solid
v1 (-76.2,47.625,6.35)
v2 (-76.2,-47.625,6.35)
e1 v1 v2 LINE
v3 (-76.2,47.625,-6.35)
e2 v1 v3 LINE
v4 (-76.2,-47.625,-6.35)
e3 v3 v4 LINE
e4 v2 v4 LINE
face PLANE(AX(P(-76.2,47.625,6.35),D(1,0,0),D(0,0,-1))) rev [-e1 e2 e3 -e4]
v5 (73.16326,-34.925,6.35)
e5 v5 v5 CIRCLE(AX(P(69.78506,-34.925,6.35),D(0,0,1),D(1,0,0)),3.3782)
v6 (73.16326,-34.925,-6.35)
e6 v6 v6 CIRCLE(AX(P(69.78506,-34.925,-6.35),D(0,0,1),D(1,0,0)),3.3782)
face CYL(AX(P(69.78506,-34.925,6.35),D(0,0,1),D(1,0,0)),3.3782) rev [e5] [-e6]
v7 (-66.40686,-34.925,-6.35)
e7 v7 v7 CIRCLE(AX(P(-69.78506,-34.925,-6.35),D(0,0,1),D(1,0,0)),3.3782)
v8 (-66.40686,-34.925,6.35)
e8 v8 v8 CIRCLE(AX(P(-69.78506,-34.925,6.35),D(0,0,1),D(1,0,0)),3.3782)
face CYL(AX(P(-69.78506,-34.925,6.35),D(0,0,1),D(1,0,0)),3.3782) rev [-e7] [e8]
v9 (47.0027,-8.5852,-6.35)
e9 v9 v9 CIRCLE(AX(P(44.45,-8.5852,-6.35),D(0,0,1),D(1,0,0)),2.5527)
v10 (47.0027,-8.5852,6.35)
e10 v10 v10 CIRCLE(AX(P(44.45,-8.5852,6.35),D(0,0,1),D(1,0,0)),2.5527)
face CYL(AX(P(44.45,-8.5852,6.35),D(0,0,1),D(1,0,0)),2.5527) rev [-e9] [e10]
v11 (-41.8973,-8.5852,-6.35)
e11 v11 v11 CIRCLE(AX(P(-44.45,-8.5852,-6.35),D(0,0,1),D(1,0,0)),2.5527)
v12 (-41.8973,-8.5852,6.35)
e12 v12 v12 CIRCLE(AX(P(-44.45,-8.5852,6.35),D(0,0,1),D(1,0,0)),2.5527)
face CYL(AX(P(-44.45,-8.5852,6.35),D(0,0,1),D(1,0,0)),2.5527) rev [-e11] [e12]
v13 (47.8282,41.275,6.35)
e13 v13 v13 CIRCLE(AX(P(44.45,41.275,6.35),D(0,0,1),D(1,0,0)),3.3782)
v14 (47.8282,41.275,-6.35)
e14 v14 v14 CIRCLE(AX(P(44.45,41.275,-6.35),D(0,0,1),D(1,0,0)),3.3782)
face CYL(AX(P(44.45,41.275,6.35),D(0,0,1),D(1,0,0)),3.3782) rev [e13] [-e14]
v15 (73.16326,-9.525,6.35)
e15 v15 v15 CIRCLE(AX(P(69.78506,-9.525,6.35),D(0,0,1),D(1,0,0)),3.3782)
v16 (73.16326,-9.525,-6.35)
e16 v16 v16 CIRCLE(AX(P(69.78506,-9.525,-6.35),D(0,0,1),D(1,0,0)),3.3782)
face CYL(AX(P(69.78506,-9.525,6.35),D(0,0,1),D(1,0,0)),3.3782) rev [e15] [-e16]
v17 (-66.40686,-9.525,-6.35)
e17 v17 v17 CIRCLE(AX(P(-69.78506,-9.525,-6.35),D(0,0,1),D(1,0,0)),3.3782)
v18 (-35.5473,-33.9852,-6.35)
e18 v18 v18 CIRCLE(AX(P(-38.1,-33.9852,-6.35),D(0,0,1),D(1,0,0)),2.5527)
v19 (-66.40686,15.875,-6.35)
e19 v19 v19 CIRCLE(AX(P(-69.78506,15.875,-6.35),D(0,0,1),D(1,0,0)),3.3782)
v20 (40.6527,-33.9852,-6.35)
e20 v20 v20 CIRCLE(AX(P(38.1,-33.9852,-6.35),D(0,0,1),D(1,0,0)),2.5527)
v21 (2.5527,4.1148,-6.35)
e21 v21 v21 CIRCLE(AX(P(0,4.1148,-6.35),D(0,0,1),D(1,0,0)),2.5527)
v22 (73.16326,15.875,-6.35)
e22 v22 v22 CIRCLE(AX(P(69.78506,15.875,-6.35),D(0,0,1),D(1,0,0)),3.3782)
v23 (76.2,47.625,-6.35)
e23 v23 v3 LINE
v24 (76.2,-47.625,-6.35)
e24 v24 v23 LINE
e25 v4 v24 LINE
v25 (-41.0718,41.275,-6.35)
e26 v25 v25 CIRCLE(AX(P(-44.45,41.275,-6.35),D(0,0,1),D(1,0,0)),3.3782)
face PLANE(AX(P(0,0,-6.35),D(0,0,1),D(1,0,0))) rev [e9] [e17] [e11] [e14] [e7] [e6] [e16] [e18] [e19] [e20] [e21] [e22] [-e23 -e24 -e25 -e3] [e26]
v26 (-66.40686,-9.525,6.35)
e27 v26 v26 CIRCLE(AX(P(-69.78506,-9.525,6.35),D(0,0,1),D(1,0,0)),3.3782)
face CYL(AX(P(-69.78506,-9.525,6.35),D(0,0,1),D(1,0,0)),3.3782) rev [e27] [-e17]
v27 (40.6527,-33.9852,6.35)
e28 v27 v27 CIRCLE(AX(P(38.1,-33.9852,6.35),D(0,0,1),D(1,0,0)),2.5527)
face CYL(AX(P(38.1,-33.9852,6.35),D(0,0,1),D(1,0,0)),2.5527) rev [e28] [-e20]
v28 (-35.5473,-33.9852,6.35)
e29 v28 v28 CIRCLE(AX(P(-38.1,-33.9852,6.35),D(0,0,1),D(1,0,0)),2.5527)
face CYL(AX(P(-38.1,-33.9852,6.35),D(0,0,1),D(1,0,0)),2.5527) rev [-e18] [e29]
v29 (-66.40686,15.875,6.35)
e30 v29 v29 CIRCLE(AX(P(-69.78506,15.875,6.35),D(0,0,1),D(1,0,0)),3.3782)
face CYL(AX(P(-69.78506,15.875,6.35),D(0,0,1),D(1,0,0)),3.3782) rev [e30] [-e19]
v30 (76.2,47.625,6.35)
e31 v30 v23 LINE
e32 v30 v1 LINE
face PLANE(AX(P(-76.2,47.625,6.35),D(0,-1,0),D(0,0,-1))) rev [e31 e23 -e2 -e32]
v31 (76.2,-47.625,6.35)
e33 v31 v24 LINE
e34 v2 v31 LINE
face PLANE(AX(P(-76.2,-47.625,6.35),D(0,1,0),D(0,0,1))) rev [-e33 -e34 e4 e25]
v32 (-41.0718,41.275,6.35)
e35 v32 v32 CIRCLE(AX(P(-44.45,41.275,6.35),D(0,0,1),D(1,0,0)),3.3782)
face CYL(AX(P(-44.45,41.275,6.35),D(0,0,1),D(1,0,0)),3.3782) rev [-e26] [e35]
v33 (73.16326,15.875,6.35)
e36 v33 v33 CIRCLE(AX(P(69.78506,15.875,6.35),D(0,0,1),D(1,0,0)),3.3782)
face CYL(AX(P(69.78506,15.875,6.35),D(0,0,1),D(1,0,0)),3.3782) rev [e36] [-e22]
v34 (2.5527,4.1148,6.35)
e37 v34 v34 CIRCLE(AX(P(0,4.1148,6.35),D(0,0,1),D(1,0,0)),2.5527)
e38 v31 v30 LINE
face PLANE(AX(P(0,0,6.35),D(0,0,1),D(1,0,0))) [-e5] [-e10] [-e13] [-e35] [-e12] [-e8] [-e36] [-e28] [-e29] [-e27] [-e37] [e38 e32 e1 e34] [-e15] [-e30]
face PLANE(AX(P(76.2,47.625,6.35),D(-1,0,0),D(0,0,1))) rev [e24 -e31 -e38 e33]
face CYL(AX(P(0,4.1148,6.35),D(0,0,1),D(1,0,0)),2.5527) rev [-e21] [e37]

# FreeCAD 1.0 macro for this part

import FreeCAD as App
import Part
import Sketcher
Q = App.Units.Quantity

doc = App.newDocument("Part")
params = doc.addObject("Spreadsheet::Sheet", "Params")
for row, (alias, value) in enumerate([
    ("sketch1_width", "6 in"),
    ("sketch1_height", "3.75 in"),
    ("pad1_length", "0.5 in"),
    ("sketch2_diameter", "0.266 in"),
    ("hole_diameter", "0.266 in"),
    ("sketch3_diameter", "0.201 in"),
    ("hole2_diameter", "0.201 in"),
], start=1):
    params.set(f"A{row}", alias)
    params.set(f"B{row}", "=" + value)
    params.setAlias(f"B{row}", alias)

body = doc.addObject("PartDesign::Body", "Body")

sketch1 = doc.addObject("Sketcher::SketchObject", "Sketch")
body.addObject(sketch1)
sketch1.AttachmentSupport = (doc.XY_Plane, [""])
sketch1.MapMode = "FlatFace"
sketch1.addGeometry([
    Part.LineSegment(App.Vector(-76.2, 47.625, 0), App.Vector(-76.2, -47.625, 0)),
    Part.LineSegment(App.Vector(-76.2, -47.625, 0), App.Vector(76.2, -47.625, 0)),
    Part.LineSegment(App.Vector(76.2, -47.625, 0), App.Vector(76.2, 47.625, 0)),
    Part.LineSegment(App.Vector(76.2, 47.625, 0), App.Vector(-76.2, 47.625, 0)),
], False)
sketch1.addConstraint([
    Sketcher.Constraint("Coincident", 0, 2, 1, 1),
    Sketcher.Constraint("Coincident", 1, 2, 2, 1),
    Sketcher.Constraint("Coincident", 2, 2, 3, 1),
    Sketcher.Constraint("Coincident", 3, 2, 0, 1),
    Sketcher.Constraint("Vertical", 0),
    Sketcher.Constraint("Horizontal", 1),
    Sketcher.Constraint("Vertical", 2),
    Sketcher.Constraint("Horizontal", 3),
    Sketcher.Constraint("Symmetric", 0, 2, 2, 2, -1, 1),
    Sketcher.Constraint("DistanceX", 1, 1, 1, 2, Q("6 in")),
    Sketcher.Constraint("DistanceY", 0, 2, 0, 1, Q("3.75 in")),
])
sketch1.setExpression("Constraints[9]", "Params.sketch1_width")
sketch1.setExpression("Constraints[10]", "Params.sketch1_height")
pad1 = doc.addObject("PartDesign::Pad", "Pad")
body.addObject(pad1)
pad1.Profile = sketch1
pad1.setExpression("Length", "Params.pad1_length")
pad1.Midplane = True

sketch2 = doc.addObject("Sketcher::SketchObject", "Sketch001")
body.addObject(sketch2)
sketch2.AttachmentSupport = (doc.XY_Plane, [""])
sketch2.MapMode = "FlatFace"
sketch2.AttachmentOffset = App.Placement(App.Vector(0, 0, 0.25 * 25.4), App.Rotation())
sketch2.addGeometry([
    Part.Circle(App.Vector(-44.45, 41.275, 0), App.Vector(0, 0, 1), 3.3782),
    Part.Circle(App.Vector(44.45, 41.275, 0), App.Vector(0, 0, 1), 3.3782),
    Part.Circle(App.Vector(69.78506, 15.875, 0), App.Vector(0, 0, 1), 3.3782),
    Part.Circle(App.Vector(69.78506, -9.525, 0), App.Vector(0, 0, 1), 3.3782),
    Part.Circle(App.Vector(69.78506, -34.925, 0), App.Vector(0, 0, 1), 3.3782),
    Part.Circle(App.Vector(-69.78506, 15.875, 0), App.Vector(0, 0, 1), 3.3782),
    Part.Circle(App.Vector(-69.78506, -9.525, 0), App.Vector(0, 0, 1), 3.3782),
    Part.Circle(App.Vector(-69.78506, -34.925, 0), App.Vector(0, 0, 1), 3.3782),
], False)
sketch2.addConstraint([
    Sketcher.Constraint("Equal", 0, 1),
    Sketcher.Constraint("Equal", 1, 2),
    Sketcher.Constraint("Equal", 2, 3),
    Sketcher.Constraint("Equal", 3, 4),
    Sketcher.Constraint("Equal", 4, 5),
    Sketcher.Constraint("Equal", 5, 6),
    Sketcher.Constraint("Equal", 6, 7),
    Sketcher.Constraint("Symmetric", 0, 3, 1, 3, -2),
    Sketcher.Constraint("Symmetric", 2, 3, 5, 3, -2),
    Sketcher.Constraint("Symmetric", 3, 3, 6, 3, -2),
    Sketcher.Constraint("Symmetric", 4, 3, 7, 3, -2),
    Sketcher.Constraint("Vertical", 2, 3, 3, 3),
    Sketcher.Constraint("Vertical", 3, 3, 4, 3),
    Sketcher.Constraint("Diameter", 0, Q("0.266 in")),
    Sketcher.Constraint("DistanceY", 2, 3, 1, 3, Q("1 in")),
    Sketcher.Constraint("DistanceY", 3, 3, 2, 3, Q("1 in")),
    Sketcher.Constraint("DistanceY", 4, 3, 3, 3, Q("1 in")),
    Sketcher.Constraint("DistanceX", 0, 3, 1, 3, Q("3.5 in")),
    Sketcher.Constraint("DistanceY", -1, 1, 0, 3, Q("1.625 in")),
    Sketcher.Constraint("DistanceX", -1, 1, 2, 3, Q("69.78506 mm")),
])
sketch2.setExpression("Constraints[13]", "Params.sketch2_diameter")
doc.recompute()
hole = doc.addObject("PartDesign::Hole", "Hole")
body.addObject(hole)
hole.Profile = sketch2
hole.ThreadType = "None"
hole.setExpression("Diameter", "Params.hole_diameter")
hole.DepthType = "ThroughAll"

sketch3 = doc.addObject("Sketcher::SketchObject", "Sketch002")
body.addObject(sketch3)
sketch3.AttachmentSupport = (doc.XY_Plane, [""])
sketch3.MapMode = "FlatFace"
sketch3.AttachmentOffset = App.Placement(App.Vector(0, 0, 0.25 * 25.4), App.Rotation())
sketch3.addGeometry([
    Part.Circle(App.Vector(-38.1, -33.9852, 0), App.Vector(0, 0, 1), 2.5527),
    Part.Circle(App.Vector(38.1, -33.9852, 0), App.Vector(0, 0, 1), 2.5527),
    Part.Circle(App.Vector(-44.45, -8.5852, 0), App.Vector(0, 0, 1), 2.5527),
    Part.Circle(App.Vector(44.45, -8.5852, 0), App.Vector(0, 0, 1), 2.5527),
    Part.Circle(App.Vector(0, 4.1148, 0), App.Vector(0, 0, 1), 2.5527),
], False)
sketch3.addConstraint([
    Sketcher.Constraint("Equal", 0, 1),
    Sketcher.Constraint("Equal", 1, 2),
    Sketcher.Constraint("Equal", 2, 3),
    Sketcher.Constraint("Equal", 3, 4),
    Sketcher.Constraint("Symmetric", 0, 3, 1, 3, -2),
    Sketcher.Constraint("Symmetric", 2, 3, 3, 3, -2),
    Sketcher.Constraint("PointOnObject", 4, 3, -2),
    Sketcher.Constraint("Diameter", 0, Q("0.201 in")),
    Sketcher.Constraint("DistanceX", 0, 3, 1, 3, Q("3 in")),
    Sketcher.Constraint("DistanceY", 0, 3, 2, 3, Q("1 in")),
    Sketcher.Constraint("DistanceX", 2, 3, 3, 3, Q("3.5 in")),
    Sketcher.Constraint("DistanceY", 2, 3, 4, 3, Q("0.5 in")),
    Sketcher.Constraint("DistanceY", 0, 3, -1, 1, Q("1.338 in")),
])
sketch3.setExpression("Constraints[7]", "Params.sketch3_diameter")
doc.recompute()
hole2 = doc.addObject("PartDesign::Hole", "Hole001")
body.addObject(hole2)
hole2.Profile = sketch3
hole2.ThreadType = "None"
hole2.setExpression("Diameter", "Params.hole2_diameter")
hole2.DepthType = "ThroughAll"

doc.recompute()
